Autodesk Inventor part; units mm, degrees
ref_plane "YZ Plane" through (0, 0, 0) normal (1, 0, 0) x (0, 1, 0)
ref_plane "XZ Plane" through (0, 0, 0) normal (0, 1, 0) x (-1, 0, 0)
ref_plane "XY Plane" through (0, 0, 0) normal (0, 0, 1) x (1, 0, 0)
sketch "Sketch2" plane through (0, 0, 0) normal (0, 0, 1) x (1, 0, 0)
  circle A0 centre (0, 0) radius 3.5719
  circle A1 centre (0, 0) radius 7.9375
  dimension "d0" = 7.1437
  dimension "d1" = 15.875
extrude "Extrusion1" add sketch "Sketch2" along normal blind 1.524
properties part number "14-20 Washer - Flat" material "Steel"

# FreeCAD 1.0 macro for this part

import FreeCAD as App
import Part
import Sketcher
Q = App.Units.Quantity

doc = App.newDocument("Part")
params = doc.addObject("Spreadsheet::Sheet", "Params")
for row, (alias, value) in enumerate([
    ("sketch1_diameter", "0.625 in"),
    ("sketch1_diameter2", "0.281252 in"),
    ("pad1_length", "0.06 in"),
], start=1):
    params.set(f"A{row}", alias)
    params.set(f"B{row}", "=" + value)
    params.setAlias(f"B{row}", alias)

body = doc.addObject("PartDesign::Body", "Body")

sketch1 = body.newObject("Sketcher::SketchObject", "Sketch")
sketch1.AttachmentSupport = (doc.getObject("XY_Plane"), [""])
sketch1.MapMode = "FlatFace"
sketch1.addGeometry([
    Part.Circle(App.Vector(0, 0, 0), App.Vector(0, 0, 1), 7.9),
    Part.Circle(App.Vector(0, 0, 0), App.Vector(0, 0, 1), 3.6),
], False)
sketch1.addConstraint([
    Sketcher.Constraint("Coincident", 0, 3, -1, 1),
    Sketcher.Constraint("Coincident", 1, 3, -1, 1),
    Sketcher.Constraint("Diameter", 0, Q("0.625 in")),
    Sketcher.Constraint("Diameter", 1, Q("0.281252 in")),
])
sketch1.setExpression("Constraints[2]", "Params.sketch1_diameter")
sketch1.setExpression("Constraints[3]", "Params.sketch1_diameter2")
pad1 = body.newObject("PartDesign::Pad", "Pad")
pad1.Profile = sketch1
pad1.setExpression("Length", "Params.pad1_length")

doc.recompute()
